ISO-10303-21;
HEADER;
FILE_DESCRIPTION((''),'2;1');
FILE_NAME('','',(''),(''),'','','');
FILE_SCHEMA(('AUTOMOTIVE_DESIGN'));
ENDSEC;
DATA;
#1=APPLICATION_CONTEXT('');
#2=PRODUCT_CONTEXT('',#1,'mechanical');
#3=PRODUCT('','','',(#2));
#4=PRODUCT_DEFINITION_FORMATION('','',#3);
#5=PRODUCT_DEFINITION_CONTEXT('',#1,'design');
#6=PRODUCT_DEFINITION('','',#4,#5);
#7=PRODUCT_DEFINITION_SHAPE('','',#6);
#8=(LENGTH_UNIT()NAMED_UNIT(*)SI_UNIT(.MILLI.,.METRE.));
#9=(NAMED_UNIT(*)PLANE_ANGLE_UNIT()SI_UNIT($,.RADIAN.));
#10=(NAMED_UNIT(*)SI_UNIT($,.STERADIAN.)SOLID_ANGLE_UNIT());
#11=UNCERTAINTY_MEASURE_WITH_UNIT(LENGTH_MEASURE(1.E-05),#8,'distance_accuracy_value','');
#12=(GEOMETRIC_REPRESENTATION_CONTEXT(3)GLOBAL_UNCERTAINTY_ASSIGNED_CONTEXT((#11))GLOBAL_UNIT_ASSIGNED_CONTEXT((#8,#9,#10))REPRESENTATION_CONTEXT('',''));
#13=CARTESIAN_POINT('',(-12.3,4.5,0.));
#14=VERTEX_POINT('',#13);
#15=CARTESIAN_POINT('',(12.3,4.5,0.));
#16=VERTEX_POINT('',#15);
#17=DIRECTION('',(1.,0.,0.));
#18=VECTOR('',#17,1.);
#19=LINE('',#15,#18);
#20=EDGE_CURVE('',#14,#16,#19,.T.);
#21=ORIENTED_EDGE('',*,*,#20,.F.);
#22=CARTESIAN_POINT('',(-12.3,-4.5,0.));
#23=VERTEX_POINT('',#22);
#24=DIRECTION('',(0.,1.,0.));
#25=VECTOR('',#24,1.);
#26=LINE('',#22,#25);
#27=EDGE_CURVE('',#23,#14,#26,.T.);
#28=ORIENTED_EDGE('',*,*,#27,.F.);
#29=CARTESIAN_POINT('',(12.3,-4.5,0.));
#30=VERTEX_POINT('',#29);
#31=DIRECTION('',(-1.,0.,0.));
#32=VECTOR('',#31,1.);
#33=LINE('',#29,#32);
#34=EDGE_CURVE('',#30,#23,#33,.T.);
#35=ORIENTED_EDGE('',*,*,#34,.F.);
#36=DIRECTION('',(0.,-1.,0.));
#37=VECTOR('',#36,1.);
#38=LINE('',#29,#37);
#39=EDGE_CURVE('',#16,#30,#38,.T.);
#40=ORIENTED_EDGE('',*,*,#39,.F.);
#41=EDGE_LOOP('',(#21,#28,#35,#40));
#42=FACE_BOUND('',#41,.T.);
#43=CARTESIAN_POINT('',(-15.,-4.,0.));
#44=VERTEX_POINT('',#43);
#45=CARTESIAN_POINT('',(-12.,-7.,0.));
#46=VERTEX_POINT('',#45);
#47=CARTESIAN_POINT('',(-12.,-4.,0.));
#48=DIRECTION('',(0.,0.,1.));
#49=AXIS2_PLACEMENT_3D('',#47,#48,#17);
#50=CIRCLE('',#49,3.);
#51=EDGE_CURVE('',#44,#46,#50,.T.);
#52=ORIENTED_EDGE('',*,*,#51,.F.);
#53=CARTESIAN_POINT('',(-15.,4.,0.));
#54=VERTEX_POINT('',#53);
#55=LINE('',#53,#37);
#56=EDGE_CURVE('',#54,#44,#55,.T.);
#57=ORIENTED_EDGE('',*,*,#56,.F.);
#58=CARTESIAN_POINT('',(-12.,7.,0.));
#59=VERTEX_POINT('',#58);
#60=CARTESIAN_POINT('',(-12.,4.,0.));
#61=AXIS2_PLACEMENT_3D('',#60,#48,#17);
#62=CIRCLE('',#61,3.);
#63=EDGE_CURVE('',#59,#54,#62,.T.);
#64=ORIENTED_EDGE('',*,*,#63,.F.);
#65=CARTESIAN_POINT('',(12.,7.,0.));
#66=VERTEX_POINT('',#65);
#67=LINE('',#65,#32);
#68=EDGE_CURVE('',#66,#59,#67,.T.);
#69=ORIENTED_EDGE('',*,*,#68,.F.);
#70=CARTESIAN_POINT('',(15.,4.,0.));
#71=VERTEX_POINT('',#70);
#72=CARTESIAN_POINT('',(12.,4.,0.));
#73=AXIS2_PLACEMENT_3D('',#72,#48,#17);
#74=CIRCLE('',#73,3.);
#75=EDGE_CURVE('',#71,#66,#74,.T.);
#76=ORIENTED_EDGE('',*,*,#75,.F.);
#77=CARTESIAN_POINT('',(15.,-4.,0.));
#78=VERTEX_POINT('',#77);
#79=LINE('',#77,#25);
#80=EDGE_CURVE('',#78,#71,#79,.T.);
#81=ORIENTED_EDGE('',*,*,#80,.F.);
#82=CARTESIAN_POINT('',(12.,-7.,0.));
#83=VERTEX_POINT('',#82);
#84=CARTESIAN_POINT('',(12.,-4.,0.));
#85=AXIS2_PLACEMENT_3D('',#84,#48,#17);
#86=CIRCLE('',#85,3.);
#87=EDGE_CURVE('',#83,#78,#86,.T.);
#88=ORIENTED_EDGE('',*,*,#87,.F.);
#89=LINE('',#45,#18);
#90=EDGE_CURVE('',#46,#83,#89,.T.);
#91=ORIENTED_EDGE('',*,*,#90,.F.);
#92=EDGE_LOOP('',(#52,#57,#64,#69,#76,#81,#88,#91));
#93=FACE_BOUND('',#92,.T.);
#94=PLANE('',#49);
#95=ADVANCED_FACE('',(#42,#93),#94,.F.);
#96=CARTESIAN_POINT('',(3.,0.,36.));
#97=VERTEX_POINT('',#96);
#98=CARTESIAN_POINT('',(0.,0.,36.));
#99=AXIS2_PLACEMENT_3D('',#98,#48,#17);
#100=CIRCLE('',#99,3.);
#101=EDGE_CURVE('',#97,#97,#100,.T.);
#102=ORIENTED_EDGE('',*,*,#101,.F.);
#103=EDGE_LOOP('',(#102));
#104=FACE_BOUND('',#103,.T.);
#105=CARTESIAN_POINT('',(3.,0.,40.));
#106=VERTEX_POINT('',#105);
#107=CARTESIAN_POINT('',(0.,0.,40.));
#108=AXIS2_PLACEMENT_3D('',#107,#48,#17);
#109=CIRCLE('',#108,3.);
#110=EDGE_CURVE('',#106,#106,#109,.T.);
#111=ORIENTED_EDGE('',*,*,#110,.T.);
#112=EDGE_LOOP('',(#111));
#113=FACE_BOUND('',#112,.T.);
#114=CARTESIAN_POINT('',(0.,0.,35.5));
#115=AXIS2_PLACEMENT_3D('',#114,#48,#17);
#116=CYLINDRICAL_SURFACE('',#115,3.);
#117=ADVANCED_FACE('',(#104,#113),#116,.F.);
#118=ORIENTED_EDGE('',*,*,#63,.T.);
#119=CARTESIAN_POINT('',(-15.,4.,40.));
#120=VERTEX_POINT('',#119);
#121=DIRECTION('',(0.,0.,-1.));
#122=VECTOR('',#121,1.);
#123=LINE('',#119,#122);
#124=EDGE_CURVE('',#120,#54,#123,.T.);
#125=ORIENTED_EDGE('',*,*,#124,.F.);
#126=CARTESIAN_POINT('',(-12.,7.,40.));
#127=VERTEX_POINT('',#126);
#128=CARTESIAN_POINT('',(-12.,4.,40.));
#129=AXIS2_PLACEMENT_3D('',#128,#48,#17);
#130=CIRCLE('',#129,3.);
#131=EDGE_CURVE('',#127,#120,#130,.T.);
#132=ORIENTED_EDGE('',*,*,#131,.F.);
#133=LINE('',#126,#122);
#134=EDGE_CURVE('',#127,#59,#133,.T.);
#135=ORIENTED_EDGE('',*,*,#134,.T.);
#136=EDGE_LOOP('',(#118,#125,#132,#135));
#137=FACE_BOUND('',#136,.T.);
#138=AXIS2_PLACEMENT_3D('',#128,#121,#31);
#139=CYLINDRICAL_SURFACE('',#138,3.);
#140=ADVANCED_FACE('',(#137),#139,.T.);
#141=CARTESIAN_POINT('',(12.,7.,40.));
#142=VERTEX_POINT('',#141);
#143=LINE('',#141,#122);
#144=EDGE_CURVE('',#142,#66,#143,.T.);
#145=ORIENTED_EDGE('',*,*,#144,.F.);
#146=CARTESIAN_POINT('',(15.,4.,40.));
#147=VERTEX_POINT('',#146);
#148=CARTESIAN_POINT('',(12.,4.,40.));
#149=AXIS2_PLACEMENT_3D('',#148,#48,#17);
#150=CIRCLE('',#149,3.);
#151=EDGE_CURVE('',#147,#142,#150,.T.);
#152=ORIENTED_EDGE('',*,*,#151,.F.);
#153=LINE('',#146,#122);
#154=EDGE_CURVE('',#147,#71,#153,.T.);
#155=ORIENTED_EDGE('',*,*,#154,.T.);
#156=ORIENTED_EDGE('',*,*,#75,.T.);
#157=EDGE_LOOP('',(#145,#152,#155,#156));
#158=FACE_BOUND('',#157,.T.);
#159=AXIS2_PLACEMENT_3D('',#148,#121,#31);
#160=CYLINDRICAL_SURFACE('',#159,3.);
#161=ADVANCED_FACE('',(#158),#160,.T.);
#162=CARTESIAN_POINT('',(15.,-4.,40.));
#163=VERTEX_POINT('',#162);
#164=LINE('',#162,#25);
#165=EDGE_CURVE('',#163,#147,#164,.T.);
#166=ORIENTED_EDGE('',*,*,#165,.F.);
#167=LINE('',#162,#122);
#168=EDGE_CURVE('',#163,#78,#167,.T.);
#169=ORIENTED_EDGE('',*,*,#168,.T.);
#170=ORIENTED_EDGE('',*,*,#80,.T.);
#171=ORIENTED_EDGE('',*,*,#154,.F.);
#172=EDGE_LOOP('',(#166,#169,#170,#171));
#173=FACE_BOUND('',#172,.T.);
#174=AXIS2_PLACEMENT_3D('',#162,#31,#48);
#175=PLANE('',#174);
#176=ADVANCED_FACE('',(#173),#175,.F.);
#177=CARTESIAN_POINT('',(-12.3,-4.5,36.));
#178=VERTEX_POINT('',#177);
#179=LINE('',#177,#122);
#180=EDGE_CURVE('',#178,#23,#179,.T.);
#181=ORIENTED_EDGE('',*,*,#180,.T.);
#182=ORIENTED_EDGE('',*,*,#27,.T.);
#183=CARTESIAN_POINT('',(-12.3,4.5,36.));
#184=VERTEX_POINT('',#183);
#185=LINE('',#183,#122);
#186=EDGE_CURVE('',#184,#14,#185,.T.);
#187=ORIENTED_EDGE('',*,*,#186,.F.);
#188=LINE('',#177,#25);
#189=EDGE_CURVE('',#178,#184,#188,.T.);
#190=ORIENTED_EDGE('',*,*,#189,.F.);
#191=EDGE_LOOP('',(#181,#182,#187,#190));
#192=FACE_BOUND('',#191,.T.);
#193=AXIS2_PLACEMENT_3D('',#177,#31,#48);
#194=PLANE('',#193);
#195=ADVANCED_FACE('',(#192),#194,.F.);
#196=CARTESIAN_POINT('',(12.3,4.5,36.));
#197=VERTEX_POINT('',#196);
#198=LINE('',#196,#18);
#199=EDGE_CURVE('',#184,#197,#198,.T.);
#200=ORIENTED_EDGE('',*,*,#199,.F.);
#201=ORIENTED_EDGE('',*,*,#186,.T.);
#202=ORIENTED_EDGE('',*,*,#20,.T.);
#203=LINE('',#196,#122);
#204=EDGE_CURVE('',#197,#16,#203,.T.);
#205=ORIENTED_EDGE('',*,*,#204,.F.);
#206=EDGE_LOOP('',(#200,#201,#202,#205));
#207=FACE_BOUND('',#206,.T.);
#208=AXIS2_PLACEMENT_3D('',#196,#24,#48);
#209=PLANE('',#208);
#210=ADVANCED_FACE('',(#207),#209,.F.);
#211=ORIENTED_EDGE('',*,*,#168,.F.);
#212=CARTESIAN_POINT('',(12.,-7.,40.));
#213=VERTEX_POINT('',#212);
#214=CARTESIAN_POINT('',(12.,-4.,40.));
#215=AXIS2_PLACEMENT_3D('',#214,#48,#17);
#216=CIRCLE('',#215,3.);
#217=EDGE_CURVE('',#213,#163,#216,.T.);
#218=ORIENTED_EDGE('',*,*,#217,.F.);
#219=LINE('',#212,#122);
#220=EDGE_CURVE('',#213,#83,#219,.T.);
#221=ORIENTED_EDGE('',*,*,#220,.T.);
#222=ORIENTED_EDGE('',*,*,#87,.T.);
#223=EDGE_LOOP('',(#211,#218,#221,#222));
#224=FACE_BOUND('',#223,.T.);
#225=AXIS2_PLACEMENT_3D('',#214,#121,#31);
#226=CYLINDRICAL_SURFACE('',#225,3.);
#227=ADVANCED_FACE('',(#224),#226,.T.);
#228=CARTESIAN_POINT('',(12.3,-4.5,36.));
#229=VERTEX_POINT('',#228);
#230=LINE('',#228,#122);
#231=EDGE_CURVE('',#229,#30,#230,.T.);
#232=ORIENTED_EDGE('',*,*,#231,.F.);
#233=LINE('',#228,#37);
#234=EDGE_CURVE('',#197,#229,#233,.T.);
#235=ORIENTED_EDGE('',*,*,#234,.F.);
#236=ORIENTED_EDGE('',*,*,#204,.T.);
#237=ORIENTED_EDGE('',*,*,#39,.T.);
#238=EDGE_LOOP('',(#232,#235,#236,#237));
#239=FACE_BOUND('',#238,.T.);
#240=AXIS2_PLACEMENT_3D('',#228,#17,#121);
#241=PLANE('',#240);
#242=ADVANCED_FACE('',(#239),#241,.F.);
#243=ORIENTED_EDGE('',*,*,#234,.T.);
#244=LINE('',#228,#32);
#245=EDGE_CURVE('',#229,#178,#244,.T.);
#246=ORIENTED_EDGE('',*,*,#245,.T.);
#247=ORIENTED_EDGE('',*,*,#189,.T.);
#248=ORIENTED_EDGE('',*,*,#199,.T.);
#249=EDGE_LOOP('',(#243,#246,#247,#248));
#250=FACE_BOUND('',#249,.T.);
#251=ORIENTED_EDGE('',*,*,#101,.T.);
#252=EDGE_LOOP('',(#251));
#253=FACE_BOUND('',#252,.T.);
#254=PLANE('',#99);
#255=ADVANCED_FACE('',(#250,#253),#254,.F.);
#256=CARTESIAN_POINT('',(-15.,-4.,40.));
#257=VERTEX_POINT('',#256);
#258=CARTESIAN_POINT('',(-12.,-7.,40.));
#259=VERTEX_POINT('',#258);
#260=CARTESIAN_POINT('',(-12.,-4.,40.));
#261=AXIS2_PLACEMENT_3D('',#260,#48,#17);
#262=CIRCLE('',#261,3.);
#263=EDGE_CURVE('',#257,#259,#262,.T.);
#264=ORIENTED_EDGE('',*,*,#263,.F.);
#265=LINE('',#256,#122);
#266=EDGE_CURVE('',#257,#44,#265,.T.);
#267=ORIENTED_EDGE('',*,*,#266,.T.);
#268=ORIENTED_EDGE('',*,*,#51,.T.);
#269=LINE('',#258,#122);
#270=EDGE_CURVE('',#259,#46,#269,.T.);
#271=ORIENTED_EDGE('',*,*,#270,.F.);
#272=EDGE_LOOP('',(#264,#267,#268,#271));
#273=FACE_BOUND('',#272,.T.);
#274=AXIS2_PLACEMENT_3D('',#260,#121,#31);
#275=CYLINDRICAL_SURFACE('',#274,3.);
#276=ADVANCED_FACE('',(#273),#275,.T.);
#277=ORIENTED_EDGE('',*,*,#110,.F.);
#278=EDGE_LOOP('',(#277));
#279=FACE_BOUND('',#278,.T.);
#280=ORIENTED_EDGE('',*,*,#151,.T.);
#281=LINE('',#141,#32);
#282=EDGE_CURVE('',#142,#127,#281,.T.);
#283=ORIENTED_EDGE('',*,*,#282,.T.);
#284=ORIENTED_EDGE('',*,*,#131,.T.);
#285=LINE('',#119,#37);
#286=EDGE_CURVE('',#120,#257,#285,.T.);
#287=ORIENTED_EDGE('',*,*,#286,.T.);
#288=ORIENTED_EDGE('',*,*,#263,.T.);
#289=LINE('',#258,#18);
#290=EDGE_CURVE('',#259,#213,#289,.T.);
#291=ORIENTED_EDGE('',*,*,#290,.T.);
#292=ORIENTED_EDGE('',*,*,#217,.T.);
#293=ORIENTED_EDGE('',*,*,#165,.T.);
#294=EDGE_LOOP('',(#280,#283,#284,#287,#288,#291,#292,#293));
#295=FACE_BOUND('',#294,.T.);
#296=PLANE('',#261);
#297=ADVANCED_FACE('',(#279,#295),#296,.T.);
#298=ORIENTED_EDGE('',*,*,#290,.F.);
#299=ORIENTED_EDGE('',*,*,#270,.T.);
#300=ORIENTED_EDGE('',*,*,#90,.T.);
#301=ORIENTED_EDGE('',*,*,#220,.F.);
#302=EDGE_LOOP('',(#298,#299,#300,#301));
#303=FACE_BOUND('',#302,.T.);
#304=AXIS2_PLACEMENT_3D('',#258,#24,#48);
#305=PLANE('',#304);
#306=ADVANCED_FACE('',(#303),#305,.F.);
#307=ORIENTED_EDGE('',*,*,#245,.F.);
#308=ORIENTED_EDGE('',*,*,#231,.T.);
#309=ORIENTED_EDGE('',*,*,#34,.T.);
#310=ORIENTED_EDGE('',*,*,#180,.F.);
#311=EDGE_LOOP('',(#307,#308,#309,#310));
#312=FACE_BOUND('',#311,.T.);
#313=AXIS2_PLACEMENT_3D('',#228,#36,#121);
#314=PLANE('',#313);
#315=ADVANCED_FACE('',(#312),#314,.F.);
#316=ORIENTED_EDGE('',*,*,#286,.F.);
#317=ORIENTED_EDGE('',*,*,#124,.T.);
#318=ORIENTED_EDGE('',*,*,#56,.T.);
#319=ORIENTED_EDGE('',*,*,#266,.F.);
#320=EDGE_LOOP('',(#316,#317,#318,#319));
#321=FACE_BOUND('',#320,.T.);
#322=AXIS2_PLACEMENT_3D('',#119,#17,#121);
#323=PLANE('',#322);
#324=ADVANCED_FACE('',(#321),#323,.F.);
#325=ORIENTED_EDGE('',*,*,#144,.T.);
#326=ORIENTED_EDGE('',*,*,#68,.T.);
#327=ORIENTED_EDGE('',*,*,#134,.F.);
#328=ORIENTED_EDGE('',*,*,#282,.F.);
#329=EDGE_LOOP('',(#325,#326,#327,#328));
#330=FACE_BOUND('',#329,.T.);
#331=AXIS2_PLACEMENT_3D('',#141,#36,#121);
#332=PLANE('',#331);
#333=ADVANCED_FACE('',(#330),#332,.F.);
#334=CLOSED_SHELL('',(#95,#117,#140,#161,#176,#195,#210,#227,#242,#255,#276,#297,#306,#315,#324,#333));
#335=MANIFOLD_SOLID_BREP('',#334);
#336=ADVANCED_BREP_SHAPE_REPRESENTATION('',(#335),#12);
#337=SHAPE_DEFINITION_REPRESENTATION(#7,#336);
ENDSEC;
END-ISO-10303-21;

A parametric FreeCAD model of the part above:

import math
import FreeCAD as App
import Part
import Sketcher

V = App.Vector


def add_polygon(sketch, points):
    """Adds a closed chain of lines whose ends are joined by coincident constraints."""
    first, n = sketch.GeometryCount, len(points)
    for a, b in zip(points, points[1:] + points[:1]):
        sketch.addGeometry(Part.LineSegment(App.Vector(*a, 0), App.Vector(*b, 0)), False)
    for i in range(n):
        sketch.addConstraint(Sketcher.Constraint("Coincident", first + i, 2, first + (i + 1) % n, 1))

doc = App.newDocument("Part")
body = doc.addObject("PartDesign::Body", "Body")

sketch1 = doc.addObject("Sketcher::SketchObject", "Sketch")
body.addObject(sketch1)
sketch1.AttachmentSupport = (doc.XY_Plane, [""])
sketch1.MapMode = "FlatFace"
sketch1.addGeometry([
    Part.LineSegment(V(-12, -7, 0), V(12, -7, 0)),
    Part.ArcOfCircle(Part.Circle(V(12, -4, 0), V(0, 0, 1), 3), math.radians(-90), math.radians(0)),
    Part.LineSegment(V(15, -4, 0), V(15, 4, 0)),
    Part.ArcOfCircle(Part.Circle(V(12, 4, 0), V(0, 0, 1), 3), math.radians(0), math.radians(90)),
    Part.LineSegment(V(12, 7, 0), V(-12, 7, 0)),
    Part.ArcOfCircle(Part.Circle(V(-12, 4, 0), V(0, 0, 1), 3), math.radians(90), math.radians(180)),
    Part.LineSegment(V(-15, 4, 0), V(-15, -4, 0)),
    Part.ArcOfCircle(Part.Circle(V(-12, -4, 0), V(0, 0, 1), 3), math.radians(180), math.radians(270)),
], False)
sketch1.addConstraint([
    Sketcher.Constraint("Tangent", 0, 2, 1, 1),
    Sketcher.Constraint("Tangent", 1, 2, 2, 1),
    Sketcher.Constraint("Tangent", 2, 2, 3, 1),
    Sketcher.Constraint("Tangent", 3, 2, 4, 1),
    Sketcher.Constraint("Tangent", 4, 2, 5, 1),
    Sketcher.Constraint("Tangent", 5, 2, 6, 1),
    Sketcher.Constraint("Tangent", 6, 2, 7, 1),
    Sketcher.Constraint("Tangent", 7, 2, 0, 1),
    Sketcher.Constraint("Horizontal", 0),
    Sketcher.Constraint("Vertical", 2),
    Sketcher.Constraint("Horizontal", 4),
    Sketcher.Constraint("Vertical", 6),
    Sketcher.Constraint("Equal", 1, 3),
    Sketcher.Constraint("Equal", 3, 5),
    Sketcher.Constraint("Equal", 5, 7),
    Sketcher.Constraint("Symmetric", 1, 3, 5, 3, -1, 1),
    Sketcher.Constraint("Radius", 1, 3.0),
    Sketcher.Constraint("DistanceX", 0, 1, 0, 2, 24.0),
    Sketcher.Constraint("DistanceY", 2, 1, 2, 2, 8.0),
])
pad1 = doc.addObject("PartDesign::Pad", "Pad")
body.addObject(pad1)
pad1.Profile = sketch1
pad1.Length = 40

sketch2 = doc.addObject("Sketcher::SketchObject", "Sketch001")
body.addObject(sketch2)
sketch2.AttachmentSupport = (doc.XY_Plane, [""])
sketch2.MapMode = "FlatFace"
add_polygon(sketch2, [(12, 4), (12, -4), (-12, -4), (-12, 4)])
sketch2.addConstraint([
    Sketcher.Constraint("Vertical", 0),
    Sketcher.Constraint("Horizontal", 1),
    Sketcher.Constraint("Vertical", 2),
    Sketcher.Constraint("Horizontal", 3),
    Sketcher.Constraint("Symmetric", 0, 2, 2, 2, -1, 1),
    Sketcher.Constraint("DistanceY", 0, 2, 0, 1, 9.0),
    Sketcher.Constraint("DistanceX", 1, 2, 1, 1, 24.6),
])
pocket1 = doc.addObject("PartDesign::Pocket", "Pocket")
body.addObject(pocket1)
pocket1.Profile = sketch2
pocket1.Length = 36
pocket1.Reversed = True

sketch3 = doc.addObject("Sketcher::SketchObject", "Sketch002")
body.addObject(sketch3)
sketch3.AttachmentSupport = (doc.XY_Plane, [""])
sketch3.MapMode = "FlatFace"
sketch3.AttachmentOffset = App.Placement(V(0, 0, 40), App.Rotation())
sketch3.addGeometry(Part.Circle(V(0, 0, 0), V(0, 0, 1), 3), False)
sketch3.addConstraint([
    Sketcher.Constraint("Coincident", 0, 3, -1, 1),
    Sketcher.Constraint("Diameter", 0, 6.0),
])
pocket2 = doc.addObject("PartDesign::Pocket", "Pocket001")
body.addObject(pocket2)
pocket2.Profile = sketch3
pocket2.Length = 4.5

doc.recompute()
